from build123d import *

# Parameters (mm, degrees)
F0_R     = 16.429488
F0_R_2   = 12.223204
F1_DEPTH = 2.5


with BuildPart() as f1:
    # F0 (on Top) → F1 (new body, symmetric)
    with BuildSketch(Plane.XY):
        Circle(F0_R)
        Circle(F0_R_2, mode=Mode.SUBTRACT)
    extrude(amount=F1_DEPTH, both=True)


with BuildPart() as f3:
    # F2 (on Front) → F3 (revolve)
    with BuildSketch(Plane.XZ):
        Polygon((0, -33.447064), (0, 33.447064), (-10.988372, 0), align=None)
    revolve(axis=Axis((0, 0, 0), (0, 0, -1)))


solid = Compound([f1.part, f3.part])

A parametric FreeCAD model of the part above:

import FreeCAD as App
import Part
import Sketcher
Q = App.Units.Quantity

doc = App.newDocument("Part")
body = doc.addObject("PartDesign::Body", "Body")

# Sketch on XY plane
sketch1 = doc.addObject("Sketcher::SketchObject", "Sketch")
body.addObject(sketch1)
sketch1.AttachmentSupport = (doc.XY_Plane, [""])
sketch1.MapMode = "FlatFace"
sketch1.addGeometry([
    Part.Circle(App.Vector(0, 0, 0), App.Vector(0, 0, 1), 16.429488),
    Part.Circle(App.Vector(0, 0, 0), App.Vector(0, 0, 1), 12.223204),
], False)
sketch1.addConstraint([
    Sketcher.Constraint("Coincident", 0, 3, -1, 1),
    Sketcher.Constraint("Coincident", 1, 3, -1, 1),
    Sketcher.Constraint("Diameter", 1, Q("24.446408 mm")),
    Sketcher.Constraint("Diameter", 0, Q("32.858976 mm")),
])
pad1 = doc.addObject("PartDesign::Pad", "Pad")
body.addObject(pad1)
pad1.Profile = sketch1
pad1.Length = 5
pad1.Midplane = True
body2 = doc.addObject("PartDesign::Body", "Body001")

# Sketch on XZ plane
sketch2 = doc.addObject("Sketcher::SketchObject", "Sketch001")
body2.addObject(sketch2)
sketch2.AttachmentSupport = (doc.getObject("XZ_Plane001"), [""])
sketch2.MapMode = "FlatFace"
sketch2.addGeometry([
    Part.LineSegment(App.Vector(0, -33.447064, 0), App.Vector(0, 33.447064, 0)),
    Part.LineSegment(App.Vector(0, 33.447064, 0), App.Vector(-10.988372, 0, 0)),
    Part.LineSegment(App.Vector(-10.988372, 0, 0), App.Vector(0, -33.447064, 0)),
], False)
sketch2.addConstraint([
    Sketcher.Constraint("Coincident", 0, 2, 1, 1),
    Sketcher.Constraint("Coincident", 1, 2, 2, 1),
    Sketcher.Constraint("Coincident", 2, 2, 0, 1),
    Sketcher.Constraint("Vertical", 0),
    Sketcher.Constraint("Symmetric", 0, 2, 2, 2, -1, 1),
    Sketcher.Constraint("PointOnObject", 1, 2, -1),
    Sketcher.Constraint("Distance", 1, Q("35.205829 mm")),
    Sketcher.Constraint("DistanceY", 0, 1, 0, 2, Q("66.894128 mm")),
])
revolution = doc.addObject("PartDesign::Revolution", "Revolution")
body2.addObject(revolution)
revolution.Profile = sketch2
revolution.ReferenceAxis = (sketch2, ["V_Axis"])
revolution.Angle = 360

doc.recompute()
